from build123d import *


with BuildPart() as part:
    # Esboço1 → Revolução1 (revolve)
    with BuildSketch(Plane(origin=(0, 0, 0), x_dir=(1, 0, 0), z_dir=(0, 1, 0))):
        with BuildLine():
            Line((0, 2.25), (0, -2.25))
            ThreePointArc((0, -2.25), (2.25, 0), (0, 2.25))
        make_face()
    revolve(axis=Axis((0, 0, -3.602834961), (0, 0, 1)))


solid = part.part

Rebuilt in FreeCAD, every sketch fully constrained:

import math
import FreeCAD as App
import Part
import Sketcher

V = App.Vector
Q = App.Units.Quantity

doc = App.newDocument("Part")
body = doc.addObject("PartDesign::Body", "Body")

sketch1 = doc.addObject("Sketcher::SketchObject", "Sketch")
body.addObject(sketch1)
sketch1.AttachmentSupport = (doc.XZ_Plane, [""])
sketch1.MapMode = "FlatFace"
sketch1.addGeometry([
    Part.LineSegment(V(0, -2.2, 0), V(0, 2.2, 0)),
    Part.ArcOfCircle(Part.Circle(V(0, 0, 0), V(0, 0, 1), 2.2), math.radians(-90), math.radians(90)),
], False)
sketch1.addConstraint([
    Sketcher.Constraint("Coincident", 0, 1, 1, 1),
    Sketcher.Constraint("Coincident", 1, 2, 0, 2),
    Sketcher.Constraint("Vertical", 0),
    Sketcher.Constraint("Coincident", 1, 3, -1, 1),
    Sketcher.Constraint("PointOnObject", 0, 1, -2),
    Sketcher.Constraint("Radius", 1, Q("2.25 mm")),
])
revolution = doc.addObject("PartDesign::Revolution", "Revolution")
body.addObject(revolution)
revolution.Profile = sketch1
revolution.ReferenceAxis = (sketch1, ["V_Axis"])
revolution.Angle = 360

doc.recompute()
